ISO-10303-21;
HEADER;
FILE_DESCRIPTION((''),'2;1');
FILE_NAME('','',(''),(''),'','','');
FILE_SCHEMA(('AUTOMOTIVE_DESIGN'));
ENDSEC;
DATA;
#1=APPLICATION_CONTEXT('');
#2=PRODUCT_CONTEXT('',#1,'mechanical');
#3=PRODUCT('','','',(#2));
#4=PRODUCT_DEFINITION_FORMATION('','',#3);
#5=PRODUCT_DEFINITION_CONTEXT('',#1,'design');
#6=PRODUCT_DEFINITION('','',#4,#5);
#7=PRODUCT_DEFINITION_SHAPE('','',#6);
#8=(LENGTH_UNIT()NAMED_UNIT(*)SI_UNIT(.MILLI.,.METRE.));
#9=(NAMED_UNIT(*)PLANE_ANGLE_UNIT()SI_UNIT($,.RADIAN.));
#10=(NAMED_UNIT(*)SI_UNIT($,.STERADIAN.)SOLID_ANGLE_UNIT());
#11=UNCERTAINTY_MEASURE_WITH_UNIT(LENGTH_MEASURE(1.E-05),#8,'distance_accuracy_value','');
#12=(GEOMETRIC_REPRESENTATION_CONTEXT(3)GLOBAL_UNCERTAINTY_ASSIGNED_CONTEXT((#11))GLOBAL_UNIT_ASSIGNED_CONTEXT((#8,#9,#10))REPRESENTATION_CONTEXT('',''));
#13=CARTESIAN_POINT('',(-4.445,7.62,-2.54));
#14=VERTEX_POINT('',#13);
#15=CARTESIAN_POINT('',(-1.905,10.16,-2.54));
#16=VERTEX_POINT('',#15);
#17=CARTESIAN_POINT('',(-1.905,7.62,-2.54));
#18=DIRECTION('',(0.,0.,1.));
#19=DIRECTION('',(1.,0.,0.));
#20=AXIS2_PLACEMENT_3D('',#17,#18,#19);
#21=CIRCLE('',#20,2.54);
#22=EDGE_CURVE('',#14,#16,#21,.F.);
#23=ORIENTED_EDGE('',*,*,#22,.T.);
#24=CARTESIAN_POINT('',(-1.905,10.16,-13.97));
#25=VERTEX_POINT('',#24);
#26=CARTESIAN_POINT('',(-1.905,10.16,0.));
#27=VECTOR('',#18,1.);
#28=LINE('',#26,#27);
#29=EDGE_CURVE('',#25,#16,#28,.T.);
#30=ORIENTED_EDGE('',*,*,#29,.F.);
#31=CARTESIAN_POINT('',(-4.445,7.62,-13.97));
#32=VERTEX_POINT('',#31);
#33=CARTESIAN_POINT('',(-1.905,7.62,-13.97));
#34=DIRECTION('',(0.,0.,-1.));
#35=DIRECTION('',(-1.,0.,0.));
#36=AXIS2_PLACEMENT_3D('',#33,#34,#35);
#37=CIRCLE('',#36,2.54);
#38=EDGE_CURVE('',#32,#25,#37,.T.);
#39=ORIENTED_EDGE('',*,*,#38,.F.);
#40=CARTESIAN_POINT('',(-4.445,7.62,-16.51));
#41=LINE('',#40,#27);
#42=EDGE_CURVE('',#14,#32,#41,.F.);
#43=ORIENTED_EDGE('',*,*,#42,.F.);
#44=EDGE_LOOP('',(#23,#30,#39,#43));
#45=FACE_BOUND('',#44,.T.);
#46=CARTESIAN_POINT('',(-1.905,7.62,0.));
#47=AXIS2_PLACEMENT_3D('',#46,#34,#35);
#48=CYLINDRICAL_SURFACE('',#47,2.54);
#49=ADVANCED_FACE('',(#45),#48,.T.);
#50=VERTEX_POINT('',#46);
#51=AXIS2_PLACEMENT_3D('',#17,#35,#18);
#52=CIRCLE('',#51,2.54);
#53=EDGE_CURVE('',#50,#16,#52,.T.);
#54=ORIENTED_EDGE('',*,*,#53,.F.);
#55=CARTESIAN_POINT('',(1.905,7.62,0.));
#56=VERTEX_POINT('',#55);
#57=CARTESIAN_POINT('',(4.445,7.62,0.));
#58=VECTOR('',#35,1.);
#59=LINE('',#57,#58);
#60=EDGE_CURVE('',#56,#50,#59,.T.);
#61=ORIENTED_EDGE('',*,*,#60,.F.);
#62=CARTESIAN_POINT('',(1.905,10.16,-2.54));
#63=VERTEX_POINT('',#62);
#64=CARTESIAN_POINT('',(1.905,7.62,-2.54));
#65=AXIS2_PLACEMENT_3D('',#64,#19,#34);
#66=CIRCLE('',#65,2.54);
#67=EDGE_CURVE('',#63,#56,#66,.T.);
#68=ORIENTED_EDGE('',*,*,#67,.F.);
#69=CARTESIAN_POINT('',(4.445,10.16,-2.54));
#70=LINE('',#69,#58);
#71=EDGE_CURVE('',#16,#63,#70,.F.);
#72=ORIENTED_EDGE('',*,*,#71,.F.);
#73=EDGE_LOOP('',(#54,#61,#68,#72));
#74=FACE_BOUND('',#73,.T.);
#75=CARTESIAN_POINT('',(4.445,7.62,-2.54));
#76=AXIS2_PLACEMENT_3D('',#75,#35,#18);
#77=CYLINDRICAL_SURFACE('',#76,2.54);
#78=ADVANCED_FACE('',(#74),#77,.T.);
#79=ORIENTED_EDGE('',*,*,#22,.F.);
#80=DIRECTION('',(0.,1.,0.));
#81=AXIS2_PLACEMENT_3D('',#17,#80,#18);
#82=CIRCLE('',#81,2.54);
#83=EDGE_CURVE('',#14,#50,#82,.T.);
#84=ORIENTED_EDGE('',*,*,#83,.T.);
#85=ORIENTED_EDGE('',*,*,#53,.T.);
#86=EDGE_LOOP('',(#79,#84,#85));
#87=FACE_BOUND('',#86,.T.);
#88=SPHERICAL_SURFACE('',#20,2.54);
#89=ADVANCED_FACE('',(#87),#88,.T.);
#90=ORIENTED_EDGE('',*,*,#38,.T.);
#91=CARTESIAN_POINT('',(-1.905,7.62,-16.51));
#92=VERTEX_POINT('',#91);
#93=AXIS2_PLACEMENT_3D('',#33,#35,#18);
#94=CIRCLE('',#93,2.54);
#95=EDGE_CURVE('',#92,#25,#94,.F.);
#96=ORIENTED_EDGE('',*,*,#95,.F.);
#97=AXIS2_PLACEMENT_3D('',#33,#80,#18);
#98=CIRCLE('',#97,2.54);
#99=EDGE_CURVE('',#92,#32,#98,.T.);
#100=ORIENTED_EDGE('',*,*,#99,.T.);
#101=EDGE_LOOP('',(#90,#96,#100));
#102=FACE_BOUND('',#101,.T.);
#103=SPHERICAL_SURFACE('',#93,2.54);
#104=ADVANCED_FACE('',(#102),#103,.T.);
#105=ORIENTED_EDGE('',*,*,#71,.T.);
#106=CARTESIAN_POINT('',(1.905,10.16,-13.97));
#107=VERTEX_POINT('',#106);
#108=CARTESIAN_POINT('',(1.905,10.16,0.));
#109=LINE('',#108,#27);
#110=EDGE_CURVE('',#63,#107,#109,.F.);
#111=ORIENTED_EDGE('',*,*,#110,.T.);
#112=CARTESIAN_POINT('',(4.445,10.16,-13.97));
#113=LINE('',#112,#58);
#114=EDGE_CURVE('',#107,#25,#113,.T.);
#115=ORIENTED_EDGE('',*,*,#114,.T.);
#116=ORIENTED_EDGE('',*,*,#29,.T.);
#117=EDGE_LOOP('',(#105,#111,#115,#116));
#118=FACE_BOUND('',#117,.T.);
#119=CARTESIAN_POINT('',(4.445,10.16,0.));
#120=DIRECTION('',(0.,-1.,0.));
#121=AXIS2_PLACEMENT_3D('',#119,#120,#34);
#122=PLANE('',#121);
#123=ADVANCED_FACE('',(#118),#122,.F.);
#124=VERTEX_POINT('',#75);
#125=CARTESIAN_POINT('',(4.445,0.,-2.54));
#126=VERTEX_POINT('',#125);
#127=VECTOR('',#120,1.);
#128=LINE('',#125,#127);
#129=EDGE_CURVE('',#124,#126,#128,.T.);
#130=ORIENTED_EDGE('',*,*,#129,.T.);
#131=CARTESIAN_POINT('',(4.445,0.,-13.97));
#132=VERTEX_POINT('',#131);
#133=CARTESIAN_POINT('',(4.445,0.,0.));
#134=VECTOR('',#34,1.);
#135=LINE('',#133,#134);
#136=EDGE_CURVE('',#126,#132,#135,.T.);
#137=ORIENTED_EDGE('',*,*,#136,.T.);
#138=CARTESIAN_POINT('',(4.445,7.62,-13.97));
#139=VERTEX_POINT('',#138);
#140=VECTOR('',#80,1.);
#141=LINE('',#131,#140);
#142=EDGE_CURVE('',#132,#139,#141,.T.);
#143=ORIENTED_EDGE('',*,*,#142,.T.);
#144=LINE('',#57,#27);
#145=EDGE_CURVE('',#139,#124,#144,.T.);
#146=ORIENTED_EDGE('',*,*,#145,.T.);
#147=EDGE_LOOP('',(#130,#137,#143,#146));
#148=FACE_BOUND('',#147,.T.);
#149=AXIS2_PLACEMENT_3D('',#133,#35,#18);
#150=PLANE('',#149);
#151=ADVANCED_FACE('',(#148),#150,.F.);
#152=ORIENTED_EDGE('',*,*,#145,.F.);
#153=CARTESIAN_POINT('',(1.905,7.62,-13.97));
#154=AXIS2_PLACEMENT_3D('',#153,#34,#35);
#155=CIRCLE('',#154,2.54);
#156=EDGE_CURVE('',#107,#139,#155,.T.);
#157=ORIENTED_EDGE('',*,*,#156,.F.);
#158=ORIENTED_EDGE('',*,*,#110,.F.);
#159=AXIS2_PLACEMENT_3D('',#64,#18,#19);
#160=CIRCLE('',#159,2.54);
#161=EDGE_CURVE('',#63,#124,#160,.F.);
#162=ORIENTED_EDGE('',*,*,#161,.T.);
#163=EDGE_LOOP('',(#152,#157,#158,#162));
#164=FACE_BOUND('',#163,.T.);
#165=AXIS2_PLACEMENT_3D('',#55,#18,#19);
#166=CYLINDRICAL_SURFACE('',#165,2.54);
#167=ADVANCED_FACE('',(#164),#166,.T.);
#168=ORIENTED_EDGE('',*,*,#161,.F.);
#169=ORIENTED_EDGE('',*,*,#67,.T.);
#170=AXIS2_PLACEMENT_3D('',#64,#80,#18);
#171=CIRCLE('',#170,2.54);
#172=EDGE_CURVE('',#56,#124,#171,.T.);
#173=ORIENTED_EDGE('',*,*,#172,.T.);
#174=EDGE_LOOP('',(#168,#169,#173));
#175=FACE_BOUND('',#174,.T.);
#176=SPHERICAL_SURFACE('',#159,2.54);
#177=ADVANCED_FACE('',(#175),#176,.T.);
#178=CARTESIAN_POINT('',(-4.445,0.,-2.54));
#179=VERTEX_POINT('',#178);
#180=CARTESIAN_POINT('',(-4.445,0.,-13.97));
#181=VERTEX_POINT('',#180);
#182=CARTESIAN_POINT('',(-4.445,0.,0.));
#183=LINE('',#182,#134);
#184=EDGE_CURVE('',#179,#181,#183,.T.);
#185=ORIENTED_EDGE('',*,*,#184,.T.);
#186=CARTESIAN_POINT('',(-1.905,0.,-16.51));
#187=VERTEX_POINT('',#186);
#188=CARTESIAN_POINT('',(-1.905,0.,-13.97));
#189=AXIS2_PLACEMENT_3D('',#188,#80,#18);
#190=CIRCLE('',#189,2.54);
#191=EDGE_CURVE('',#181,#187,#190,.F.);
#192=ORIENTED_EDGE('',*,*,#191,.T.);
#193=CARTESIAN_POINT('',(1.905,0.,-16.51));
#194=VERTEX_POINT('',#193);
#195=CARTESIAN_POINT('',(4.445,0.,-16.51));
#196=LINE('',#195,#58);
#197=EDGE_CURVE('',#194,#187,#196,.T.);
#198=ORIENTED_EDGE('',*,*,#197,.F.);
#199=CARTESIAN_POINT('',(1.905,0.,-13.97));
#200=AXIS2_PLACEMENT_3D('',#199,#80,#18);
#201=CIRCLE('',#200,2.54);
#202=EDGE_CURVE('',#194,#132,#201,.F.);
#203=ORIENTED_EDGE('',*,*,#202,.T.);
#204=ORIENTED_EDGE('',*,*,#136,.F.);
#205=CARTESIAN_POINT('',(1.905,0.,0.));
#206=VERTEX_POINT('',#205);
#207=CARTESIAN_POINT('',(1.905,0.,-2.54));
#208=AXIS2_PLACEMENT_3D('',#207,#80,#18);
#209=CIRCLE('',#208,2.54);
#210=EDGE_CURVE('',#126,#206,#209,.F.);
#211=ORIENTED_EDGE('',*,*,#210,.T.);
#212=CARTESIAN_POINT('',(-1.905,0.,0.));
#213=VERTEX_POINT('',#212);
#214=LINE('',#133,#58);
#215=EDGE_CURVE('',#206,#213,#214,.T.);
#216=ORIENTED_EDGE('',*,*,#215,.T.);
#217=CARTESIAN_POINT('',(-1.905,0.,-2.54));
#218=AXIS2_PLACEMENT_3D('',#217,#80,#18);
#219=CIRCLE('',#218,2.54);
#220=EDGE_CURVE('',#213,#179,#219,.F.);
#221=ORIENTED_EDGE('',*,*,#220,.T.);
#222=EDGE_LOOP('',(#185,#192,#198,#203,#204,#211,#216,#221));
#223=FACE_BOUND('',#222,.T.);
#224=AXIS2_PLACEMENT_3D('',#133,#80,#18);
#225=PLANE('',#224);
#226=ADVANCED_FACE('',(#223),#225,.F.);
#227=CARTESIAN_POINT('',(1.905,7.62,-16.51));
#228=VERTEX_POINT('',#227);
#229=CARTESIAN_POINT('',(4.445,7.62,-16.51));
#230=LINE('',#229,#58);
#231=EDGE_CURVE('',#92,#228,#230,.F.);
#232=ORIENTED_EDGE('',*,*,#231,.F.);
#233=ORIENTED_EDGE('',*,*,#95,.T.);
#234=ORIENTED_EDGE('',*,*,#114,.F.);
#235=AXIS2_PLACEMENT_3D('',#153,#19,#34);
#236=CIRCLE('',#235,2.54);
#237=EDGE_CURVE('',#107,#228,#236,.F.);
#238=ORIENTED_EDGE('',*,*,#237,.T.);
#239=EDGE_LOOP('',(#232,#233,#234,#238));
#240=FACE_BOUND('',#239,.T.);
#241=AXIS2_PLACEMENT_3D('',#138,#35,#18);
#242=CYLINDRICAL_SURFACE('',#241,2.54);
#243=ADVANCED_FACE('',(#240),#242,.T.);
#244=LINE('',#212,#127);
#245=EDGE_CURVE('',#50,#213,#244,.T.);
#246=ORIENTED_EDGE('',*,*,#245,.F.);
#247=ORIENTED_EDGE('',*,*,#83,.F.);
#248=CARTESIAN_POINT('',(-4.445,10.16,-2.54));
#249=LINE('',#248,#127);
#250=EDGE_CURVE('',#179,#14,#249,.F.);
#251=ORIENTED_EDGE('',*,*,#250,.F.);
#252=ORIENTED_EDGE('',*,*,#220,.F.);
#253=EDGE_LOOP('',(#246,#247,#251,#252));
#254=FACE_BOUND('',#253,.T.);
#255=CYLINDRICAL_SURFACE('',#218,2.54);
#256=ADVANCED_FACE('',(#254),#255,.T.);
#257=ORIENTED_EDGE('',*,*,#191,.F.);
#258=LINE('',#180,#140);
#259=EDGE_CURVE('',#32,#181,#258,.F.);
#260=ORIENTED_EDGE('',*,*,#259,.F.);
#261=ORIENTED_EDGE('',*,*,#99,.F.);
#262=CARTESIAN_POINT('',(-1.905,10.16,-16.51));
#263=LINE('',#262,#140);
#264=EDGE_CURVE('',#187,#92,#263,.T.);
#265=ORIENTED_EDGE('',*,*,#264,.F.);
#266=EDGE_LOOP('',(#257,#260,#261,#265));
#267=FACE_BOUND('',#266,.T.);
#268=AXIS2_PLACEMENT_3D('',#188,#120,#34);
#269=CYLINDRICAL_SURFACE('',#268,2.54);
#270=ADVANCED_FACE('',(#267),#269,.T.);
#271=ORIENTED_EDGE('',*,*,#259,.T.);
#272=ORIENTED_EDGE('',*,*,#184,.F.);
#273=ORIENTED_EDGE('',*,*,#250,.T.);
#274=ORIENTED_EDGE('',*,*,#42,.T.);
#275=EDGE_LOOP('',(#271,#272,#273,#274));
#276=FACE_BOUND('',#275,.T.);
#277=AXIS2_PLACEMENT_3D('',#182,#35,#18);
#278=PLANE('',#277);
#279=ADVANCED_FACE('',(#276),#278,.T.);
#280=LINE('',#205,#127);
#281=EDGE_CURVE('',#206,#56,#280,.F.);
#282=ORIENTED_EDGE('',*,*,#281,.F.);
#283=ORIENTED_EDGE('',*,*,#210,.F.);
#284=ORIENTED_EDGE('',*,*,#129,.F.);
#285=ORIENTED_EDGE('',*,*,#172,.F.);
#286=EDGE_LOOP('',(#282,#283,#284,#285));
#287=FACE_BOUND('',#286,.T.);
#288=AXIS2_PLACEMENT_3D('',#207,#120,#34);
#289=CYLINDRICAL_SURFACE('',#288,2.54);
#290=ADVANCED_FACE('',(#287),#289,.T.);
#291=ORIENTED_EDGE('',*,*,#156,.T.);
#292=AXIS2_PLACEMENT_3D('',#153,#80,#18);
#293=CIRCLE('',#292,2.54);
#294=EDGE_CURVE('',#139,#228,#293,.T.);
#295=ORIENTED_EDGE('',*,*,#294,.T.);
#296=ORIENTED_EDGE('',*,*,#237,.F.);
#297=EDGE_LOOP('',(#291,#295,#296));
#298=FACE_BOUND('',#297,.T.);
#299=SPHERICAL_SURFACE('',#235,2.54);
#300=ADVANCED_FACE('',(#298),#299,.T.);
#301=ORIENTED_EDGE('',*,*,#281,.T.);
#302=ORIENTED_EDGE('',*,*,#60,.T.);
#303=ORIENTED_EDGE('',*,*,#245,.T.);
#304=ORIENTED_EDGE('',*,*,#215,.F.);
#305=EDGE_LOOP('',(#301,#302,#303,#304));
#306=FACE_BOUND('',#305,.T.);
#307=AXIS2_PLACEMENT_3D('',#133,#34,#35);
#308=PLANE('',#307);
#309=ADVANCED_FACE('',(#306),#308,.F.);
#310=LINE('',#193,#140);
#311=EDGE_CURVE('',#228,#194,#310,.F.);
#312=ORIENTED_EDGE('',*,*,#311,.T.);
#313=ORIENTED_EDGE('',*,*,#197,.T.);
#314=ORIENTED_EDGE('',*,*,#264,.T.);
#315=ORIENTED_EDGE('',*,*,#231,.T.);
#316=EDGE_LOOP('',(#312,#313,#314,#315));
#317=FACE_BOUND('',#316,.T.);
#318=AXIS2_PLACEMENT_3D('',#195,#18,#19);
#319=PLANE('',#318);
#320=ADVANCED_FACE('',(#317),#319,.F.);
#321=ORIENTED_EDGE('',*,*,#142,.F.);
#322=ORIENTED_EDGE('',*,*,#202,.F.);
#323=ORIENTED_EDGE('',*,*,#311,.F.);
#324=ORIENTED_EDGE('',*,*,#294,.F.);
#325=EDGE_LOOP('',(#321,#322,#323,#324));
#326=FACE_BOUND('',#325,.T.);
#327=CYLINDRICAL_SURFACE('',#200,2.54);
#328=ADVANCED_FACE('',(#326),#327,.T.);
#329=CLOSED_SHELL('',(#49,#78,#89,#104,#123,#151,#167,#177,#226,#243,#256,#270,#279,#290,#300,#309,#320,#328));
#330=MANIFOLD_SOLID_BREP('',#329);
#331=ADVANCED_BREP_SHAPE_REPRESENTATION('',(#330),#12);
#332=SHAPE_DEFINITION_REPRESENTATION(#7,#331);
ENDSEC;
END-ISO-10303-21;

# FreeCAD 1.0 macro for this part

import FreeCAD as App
import Part
import Sketcher
Q = App.Units.Quantity


def edges_at(feature, points):
    """Names of the edges that pass closest to the given points."""
    edges = feature.Shape.Edges
    near = lambda p: min(range(len(edges)), key=lambda i: edges[i].distToShape(Part.Vertex(*p))[0])
    return sorted({f"Edge{near(p) + 1}" for p in points})

doc = App.newDocument("Part")
params = doc.addObject("Spreadsheet::Sheet", "Params")
for row, (alias, value) in enumerate([
    ("sketch1_width", "0.4 in"),
    ("sketch1_height", "0.65 in"),
    ("pad1_length", "0.35 in"),
    ("fillet_radius", "0.1 in"),
], start=1):
    params.set(f"A{row}", alias)
    params.set(f"B{row}", "=" + value)
    params.setAlias(f"B{row}", alias)

body = doc.addObject("PartDesign::Body", "Body")

sketch1 = doc.addObject("Sketcher::SketchObject", "Sketch")
body.addObject(sketch1)
sketch1.AttachmentSupport = (doc.YZ_Plane, [""])
sketch1.MapMode = "FlatFace"
sketch1.addGeometry([
    Part.LineSegment(App.Vector(10.16, 0, 0), App.Vector(0, 0, 0)),
    Part.LineSegment(App.Vector(0, 0, 0), App.Vector(0, -16.51, 0)),
    Part.LineSegment(App.Vector(0, -16.51, 0), App.Vector(10.16, -16.51, 0)),
    Part.LineSegment(App.Vector(10.16, -16.51, 0), App.Vector(10.16, 0, 0)),
], False)
sketch1.addConstraint([
    Sketcher.Constraint("Coincident", 0, 2, 1, 1),
    Sketcher.Constraint("Coincident", 1, 2, 2, 1),
    Sketcher.Constraint("Coincident", 2, 2, 3, 1),
    Sketcher.Constraint("Coincident", 3, 2, 0, 1),
    Sketcher.Constraint("Horizontal", 0),
    Sketcher.Constraint("Vertical", 1),
    Sketcher.Constraint("Horizontal", 2),
    Sketcher.Constraint("Vertical", 3),
    Sketcher.Constraint("Coincident", 0, 2, -1, 1),
    Sketcher.Constraint("DistanceX", 0, 2, 0, 1, Q("0.4 in")),
    Sketcher.Constraint("DistanceY", 1, 2, 1, 1, Q("0.65 in")),
])
sketch1.setExpression("Constraints[9]", "Params.sketch1_width")
sketch1.setExpression("Constraints[10]", "Params.sketch1_height")
pad1 = doc.addObject("PartDesign::Pad", "Pad")
body.addObject(pad1)
pad1.Profile = sketch1
pad1.setExpression("Length", "Params.pad1_length")
pad1.Midplane = True
doc.recompute()

fillet = doc.addObject("PartDesign::Fillet", "Fillet")
body.addObject(fillet)
fillet.Base = (pad1, edges_at(pad1, [
    (4.445, 5.08, -16.51),
    (4.445, 10.16, -8.255),
    (4.445, 5.08, 0),
    (-4.445, 10.16, -8.255),
    (-4.445, 5.08, -16.51),
    (-4.445, 5.08, 0),
    (0, 10.16, 0),
    (0, 10.16, -16.51),
]))
fillet.setExpression("Radius", "Params.fillet_radius")

doc.recompute()
